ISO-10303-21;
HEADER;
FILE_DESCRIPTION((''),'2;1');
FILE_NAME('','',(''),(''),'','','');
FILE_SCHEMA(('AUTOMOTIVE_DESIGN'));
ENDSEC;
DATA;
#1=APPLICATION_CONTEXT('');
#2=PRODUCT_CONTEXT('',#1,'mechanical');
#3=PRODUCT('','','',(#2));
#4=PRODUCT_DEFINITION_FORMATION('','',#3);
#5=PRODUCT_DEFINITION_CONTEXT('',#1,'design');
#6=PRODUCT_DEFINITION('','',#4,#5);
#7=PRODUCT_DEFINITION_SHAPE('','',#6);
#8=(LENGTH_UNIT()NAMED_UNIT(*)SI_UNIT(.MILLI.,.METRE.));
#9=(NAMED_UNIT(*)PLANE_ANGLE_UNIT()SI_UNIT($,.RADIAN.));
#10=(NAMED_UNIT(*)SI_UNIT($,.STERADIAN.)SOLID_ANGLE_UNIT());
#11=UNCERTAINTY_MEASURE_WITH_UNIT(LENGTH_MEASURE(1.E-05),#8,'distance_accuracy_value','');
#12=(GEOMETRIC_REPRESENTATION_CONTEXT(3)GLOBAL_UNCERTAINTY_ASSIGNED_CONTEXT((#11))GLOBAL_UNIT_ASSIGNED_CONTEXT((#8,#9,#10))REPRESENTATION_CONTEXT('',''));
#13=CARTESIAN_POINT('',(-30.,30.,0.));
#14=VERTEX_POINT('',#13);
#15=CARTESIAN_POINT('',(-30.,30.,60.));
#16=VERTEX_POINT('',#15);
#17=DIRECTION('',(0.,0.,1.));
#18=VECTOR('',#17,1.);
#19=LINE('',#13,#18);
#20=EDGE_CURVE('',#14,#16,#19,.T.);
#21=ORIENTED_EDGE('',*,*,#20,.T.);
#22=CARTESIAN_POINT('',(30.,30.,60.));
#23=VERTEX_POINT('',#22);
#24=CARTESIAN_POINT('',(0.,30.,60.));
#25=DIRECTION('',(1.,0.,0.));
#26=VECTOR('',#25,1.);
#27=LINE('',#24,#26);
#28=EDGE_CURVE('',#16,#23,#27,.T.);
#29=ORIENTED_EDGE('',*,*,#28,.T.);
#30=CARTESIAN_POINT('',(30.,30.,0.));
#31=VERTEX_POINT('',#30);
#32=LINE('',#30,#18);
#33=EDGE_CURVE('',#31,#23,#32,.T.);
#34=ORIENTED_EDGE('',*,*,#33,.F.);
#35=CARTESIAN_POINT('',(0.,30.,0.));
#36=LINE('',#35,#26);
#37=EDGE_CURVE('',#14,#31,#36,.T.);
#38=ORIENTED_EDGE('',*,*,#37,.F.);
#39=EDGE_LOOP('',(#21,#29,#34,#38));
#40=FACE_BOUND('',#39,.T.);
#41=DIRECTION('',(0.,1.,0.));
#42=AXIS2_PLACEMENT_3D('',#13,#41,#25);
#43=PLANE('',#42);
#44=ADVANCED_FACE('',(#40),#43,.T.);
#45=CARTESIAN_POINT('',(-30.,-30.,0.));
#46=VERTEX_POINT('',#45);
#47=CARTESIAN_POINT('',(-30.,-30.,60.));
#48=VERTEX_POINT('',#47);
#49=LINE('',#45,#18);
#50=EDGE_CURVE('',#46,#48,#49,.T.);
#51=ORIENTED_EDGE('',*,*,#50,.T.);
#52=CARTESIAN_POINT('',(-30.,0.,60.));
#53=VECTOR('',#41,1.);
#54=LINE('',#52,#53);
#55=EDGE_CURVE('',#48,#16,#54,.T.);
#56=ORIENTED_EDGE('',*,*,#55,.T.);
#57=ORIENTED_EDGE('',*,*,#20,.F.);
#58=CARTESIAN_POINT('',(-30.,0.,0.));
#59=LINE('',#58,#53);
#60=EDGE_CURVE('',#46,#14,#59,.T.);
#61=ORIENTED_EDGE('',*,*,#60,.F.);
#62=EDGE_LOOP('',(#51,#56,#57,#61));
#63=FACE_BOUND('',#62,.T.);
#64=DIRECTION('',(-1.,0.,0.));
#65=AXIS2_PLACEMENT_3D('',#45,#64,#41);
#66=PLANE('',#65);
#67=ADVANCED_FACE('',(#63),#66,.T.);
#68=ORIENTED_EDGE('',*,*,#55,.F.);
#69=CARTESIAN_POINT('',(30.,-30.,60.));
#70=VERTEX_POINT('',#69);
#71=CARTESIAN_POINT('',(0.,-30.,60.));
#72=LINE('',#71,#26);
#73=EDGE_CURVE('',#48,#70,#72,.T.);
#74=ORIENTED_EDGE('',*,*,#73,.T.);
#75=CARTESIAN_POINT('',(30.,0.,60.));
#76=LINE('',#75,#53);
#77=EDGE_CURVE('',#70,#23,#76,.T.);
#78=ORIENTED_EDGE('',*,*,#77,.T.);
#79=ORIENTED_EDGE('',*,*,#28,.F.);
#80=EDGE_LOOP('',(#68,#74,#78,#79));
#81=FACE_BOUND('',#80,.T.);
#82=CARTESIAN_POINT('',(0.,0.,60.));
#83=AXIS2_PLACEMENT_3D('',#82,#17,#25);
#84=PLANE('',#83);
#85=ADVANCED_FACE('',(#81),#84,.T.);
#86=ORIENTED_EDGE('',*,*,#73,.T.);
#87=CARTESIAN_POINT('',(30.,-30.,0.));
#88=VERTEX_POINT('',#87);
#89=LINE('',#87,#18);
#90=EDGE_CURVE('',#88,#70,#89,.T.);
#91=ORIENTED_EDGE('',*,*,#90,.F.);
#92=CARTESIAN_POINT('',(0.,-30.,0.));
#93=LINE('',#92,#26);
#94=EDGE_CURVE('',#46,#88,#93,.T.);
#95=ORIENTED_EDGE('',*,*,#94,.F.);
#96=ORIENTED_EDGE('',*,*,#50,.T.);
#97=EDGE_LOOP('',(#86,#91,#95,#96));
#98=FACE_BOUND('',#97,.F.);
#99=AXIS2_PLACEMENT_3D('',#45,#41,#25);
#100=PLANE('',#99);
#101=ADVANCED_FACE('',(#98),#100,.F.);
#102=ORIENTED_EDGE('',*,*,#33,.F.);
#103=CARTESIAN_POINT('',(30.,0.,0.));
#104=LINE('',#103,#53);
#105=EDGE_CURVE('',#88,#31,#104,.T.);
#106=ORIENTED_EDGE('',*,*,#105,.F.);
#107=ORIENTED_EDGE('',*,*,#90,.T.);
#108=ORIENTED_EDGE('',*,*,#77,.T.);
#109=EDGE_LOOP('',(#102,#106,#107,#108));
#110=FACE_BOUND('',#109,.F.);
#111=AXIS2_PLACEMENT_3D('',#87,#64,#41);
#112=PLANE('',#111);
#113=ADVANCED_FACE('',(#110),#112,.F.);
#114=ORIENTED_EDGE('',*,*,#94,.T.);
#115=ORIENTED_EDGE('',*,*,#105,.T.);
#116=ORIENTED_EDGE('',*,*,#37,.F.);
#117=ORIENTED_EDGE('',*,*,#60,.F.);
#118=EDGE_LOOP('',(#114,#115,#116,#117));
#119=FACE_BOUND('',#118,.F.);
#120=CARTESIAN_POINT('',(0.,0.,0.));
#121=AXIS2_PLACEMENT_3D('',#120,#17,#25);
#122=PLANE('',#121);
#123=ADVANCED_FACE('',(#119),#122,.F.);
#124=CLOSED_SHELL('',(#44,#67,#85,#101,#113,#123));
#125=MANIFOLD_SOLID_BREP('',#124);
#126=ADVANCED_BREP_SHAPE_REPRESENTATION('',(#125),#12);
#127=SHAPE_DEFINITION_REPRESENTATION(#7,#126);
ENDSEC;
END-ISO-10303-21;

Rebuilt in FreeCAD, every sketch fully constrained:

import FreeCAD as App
import Part
import Sketcher
from FreeCAD import Vector

doc = App.newDocument("Part")
body = doc.addObject("PartDesign::Body", "Body")

# Sketch on XY plane
sketch1 = body.newObject("Sketcher::SketchObject", "Sketch")
sketch1.AttachmentSupport = (doc.getObject("XY_Plane"), [""])
sketch1.MapMode = "FlatFace"
sketch1.addGeometry([
    Part.LineSegment(Vector(-30, 30, 0), Vector(-30, -30, 0)),
    Part.LineSegment(Vector(-30, -30, 0), Vector(30, -30, 0)),
    Part.LineSegment(Vector(30, -30, 0), Vector(30, 30, 0)),
    Part.LineSegment(Vector(30, 30, 0), Vector(-30, 30, 0)),
], False)
sketch1.addConstraint([
    Sketcher.Constraint("Coincident", 0, 2, 1, 1),
    Sketcher.Constraint("Coincident", 1, 2, 2, 1),
    Sketcher.Constraint("Coincident", 2, 2, 3, 1),
    Sketcher.Constraint("Coincident", 3, 2, 0, 1),
    Sketcher.Constraint("Vertical", 0),
    Sketcher.Constraint("Horizontal", 1),
    Sketcher.Constraint("Vertical", 2),
    Sketcher.Constraint("Horizontal", 3),
    Sketcher.Constraint("Symmetric", 0, 2, 2, 2, -1, 1),
    Sketcher.Constraint("Equal", 3, 0),
    Sketcher.Constraint("DistanceX", 1, 1, 1, 2, 60.0),
])
pad1 = body.newObject("PartDesign::Pad", "Pad")
pad1.Profile = sketch1
pad1.Length = 60

doc.recompute()
